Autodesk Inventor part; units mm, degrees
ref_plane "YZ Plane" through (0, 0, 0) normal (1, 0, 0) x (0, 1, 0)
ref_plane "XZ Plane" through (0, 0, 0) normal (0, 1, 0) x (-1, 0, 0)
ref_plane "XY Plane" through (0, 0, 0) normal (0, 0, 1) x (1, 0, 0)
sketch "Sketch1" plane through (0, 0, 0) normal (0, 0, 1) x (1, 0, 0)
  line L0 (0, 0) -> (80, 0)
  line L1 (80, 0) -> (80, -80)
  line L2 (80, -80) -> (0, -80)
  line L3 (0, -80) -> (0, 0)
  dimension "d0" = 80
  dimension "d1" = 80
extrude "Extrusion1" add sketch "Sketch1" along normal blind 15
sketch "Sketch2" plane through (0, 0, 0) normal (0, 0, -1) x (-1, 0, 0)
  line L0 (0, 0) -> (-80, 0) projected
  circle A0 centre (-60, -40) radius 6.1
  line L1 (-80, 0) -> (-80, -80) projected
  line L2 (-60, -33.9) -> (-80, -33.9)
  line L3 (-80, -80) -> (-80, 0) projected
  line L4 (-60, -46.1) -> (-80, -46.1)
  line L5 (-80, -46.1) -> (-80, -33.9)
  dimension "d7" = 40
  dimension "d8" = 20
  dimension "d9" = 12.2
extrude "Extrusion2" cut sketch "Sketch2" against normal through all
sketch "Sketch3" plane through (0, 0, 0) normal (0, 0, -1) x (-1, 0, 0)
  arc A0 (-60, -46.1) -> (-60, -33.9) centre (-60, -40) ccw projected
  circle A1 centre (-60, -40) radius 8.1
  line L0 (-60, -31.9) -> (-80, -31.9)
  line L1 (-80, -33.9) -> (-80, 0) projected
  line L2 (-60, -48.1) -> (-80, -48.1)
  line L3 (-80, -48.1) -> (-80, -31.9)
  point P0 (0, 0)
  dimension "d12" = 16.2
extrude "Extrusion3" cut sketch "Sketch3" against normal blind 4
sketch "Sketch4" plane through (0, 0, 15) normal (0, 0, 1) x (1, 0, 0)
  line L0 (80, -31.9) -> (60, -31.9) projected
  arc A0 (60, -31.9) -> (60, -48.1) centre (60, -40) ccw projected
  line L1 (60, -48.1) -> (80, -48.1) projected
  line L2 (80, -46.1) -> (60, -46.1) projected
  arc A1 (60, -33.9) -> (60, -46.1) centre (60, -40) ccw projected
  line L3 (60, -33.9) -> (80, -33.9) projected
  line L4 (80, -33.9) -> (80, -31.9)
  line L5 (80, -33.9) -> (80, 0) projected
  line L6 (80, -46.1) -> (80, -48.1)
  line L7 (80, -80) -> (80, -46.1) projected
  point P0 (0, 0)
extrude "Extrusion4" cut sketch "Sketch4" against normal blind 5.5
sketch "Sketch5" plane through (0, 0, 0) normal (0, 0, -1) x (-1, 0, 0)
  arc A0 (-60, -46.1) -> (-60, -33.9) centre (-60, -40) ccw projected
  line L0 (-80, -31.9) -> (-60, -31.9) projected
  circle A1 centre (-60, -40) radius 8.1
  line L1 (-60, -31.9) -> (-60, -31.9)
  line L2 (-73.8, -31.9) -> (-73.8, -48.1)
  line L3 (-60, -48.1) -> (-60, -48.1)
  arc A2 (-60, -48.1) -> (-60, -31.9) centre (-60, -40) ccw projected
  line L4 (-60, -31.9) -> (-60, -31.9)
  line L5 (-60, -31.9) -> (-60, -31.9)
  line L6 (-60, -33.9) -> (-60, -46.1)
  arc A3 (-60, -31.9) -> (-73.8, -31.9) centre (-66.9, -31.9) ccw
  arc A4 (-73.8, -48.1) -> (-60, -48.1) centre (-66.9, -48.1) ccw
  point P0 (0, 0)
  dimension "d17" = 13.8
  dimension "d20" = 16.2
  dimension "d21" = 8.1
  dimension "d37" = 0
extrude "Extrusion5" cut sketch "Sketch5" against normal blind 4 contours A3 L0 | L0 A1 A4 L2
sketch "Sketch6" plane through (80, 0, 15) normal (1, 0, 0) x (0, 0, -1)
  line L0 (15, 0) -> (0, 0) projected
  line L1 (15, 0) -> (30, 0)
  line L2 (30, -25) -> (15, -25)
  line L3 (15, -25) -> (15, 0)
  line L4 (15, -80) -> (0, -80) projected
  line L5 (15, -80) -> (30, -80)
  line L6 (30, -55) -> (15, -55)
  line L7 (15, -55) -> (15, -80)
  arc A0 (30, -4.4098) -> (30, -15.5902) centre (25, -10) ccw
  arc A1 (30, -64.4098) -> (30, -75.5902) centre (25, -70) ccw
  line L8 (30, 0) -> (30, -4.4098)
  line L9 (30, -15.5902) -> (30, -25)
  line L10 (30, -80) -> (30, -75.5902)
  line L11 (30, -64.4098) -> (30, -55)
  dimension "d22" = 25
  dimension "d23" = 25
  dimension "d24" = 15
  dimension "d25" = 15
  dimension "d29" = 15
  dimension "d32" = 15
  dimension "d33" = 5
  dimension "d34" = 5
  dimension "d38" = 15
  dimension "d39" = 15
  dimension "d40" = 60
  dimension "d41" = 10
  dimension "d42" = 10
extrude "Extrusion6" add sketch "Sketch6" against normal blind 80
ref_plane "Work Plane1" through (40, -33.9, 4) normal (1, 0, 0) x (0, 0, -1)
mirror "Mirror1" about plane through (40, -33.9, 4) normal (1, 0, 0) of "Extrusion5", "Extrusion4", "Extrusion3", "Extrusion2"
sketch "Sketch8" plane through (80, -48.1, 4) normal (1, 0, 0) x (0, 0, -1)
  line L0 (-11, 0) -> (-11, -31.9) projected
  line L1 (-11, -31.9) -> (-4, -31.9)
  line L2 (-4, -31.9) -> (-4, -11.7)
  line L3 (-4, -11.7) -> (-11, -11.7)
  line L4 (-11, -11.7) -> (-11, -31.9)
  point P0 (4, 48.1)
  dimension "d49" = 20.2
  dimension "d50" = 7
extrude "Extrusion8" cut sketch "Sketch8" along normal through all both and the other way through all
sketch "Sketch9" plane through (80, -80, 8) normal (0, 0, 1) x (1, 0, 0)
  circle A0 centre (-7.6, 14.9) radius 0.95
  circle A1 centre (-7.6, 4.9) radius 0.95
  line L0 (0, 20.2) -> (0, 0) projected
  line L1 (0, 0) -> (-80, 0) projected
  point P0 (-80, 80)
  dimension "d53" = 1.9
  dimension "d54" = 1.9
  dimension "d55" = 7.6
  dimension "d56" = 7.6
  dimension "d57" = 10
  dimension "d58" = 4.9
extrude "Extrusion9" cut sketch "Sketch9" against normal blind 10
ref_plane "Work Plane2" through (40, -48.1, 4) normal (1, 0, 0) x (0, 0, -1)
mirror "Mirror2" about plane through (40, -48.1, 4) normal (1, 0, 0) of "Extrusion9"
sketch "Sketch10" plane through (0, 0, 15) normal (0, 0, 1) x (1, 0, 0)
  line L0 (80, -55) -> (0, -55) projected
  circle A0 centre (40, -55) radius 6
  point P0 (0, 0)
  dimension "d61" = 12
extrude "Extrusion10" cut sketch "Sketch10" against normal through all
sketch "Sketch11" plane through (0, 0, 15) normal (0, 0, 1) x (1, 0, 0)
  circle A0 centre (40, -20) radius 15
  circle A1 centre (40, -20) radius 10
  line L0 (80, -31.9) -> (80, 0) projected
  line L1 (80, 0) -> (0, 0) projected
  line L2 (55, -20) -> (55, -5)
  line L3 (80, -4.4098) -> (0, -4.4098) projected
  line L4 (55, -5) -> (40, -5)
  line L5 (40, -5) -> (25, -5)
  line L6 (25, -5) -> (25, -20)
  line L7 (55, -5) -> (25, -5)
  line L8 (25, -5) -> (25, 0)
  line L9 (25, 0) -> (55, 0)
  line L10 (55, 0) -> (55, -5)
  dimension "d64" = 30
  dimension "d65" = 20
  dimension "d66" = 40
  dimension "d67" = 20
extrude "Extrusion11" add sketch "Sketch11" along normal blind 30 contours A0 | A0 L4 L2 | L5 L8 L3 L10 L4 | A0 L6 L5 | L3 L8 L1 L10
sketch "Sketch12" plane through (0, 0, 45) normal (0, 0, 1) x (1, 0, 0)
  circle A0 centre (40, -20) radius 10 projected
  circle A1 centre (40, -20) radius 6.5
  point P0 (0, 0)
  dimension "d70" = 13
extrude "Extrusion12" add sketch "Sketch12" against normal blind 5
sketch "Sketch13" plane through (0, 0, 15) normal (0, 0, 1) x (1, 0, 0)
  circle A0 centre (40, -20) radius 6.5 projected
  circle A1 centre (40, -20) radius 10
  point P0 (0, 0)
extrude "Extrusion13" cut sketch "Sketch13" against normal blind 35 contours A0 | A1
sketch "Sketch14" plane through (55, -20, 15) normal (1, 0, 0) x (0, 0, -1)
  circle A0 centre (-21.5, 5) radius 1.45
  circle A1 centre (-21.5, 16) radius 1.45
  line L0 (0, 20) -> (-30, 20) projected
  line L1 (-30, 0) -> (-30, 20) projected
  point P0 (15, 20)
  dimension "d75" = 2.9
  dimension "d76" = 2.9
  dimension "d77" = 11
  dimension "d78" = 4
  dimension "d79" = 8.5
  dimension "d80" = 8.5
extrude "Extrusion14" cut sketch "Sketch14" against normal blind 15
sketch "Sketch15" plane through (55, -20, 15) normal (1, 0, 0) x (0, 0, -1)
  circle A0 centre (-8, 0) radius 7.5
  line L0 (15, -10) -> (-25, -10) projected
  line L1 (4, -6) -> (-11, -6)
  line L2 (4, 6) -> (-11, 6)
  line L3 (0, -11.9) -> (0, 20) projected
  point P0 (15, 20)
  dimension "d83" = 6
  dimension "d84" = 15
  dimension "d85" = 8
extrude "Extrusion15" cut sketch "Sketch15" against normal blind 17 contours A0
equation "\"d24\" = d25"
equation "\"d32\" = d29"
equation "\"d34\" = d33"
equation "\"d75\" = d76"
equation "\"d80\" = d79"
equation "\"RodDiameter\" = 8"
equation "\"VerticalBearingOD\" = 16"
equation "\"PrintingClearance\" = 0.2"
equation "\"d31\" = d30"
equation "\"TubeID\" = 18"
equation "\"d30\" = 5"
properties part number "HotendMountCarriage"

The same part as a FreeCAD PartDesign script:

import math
import FreeCAD as App
import Part
import Sketcher

V = App.Vector

doc = App.newDocument("Part")
body = doc.addObject("PartDesign::Body", "Body")

# Sketch on XY plane
sketch1 = body.newObject("Sketcher::SketchObject", "Sketch")
sketch1.AttachmentSupport = (doc.getObject("XY_Plane"), [""])
sketch1.MapMode = "FlatFace"
sketch1.addGeometry([
    Part.LineSegment(V(80, 0, 0), V(0, 0, 0)),
    Part.LineSegment(V(0, 0, 0), V(0, -80, 0)),
    Part.LineSegment(V(0, -80, 0), V(80, -80, 0)),
    Part.LineSegment(V(80, -80, 0), V(80, 0, 0)),
], False)
sketch1.addConstraint([
    Sketcher.Constraint("Coincident", 0, 2, 1, 1),
    Sketcher.Constraint("Coincident", 1, 2, 2, 1),
    Sketcher.Constraint("Coincident", 2, 2, 3, 1),
    Sketcher.Constraint("Coincident", 3, 2, 0, 1),
    Sketcher.Constraint("Horizontal", 0),
    Sketcher.Constraint("Vertical", 1),
    Sketcher.Constraint("Horizontal", 2),
    Sketcher.Constraint("Vertical", 3),
    Sketcher.Constraint("Coincident", 0, 2, -1, 1),
    Sketcher.Constraint("Equal", 2, 1),
    Sketcher.Constraint("DistanceX", 0, 2, 0, 1, 80.0),
])
pad1 = body.newObject("PartDesign::Pad", "Pad")
pad1.Profile = sketch1
pad1.Length = 15

# Sketch on XY plane
sketch2 = body.newObject("Sketcher::SketchObject", "Sketch001")
sketch2.AttachmentSupport = (doc.getObject("XY_Plane"), [""])
sketch2.MapMode = "FlatFace"
sketch2.addGeometry([
    Part.ArcOfCircle(Part.Circle(V(60, -40, 0), V(0, 0, 1), 6), math.radians(90), math.radians(270)),
    Part.LineSegment(V(60, -34, 0), V(80, -34, 0)),
    Part.LineSegment(V(80, -34, 0), V(80, -46, 0)),
    Part.LineSegment(V(80, -46, 0), V(60, -46, 0)),
], False)
sketch2.addConstraint([
    Sketcher.Constraint("Tangent", 0, 1, 1, 1),
    Sketcher.Constraint("Coincident", 1, 2, 2, 1),
    Sketcher.Constraint("Coincident", 2, 2, 3, 1),
    Sketcher.Constraint("Tangent", 3, 2, 0, 2),
    Sketcher.Constraint("Horizontal", 1),
    Sketcher.Constraint("Vertical", 2),
    Sketcher.Constraint("Horizontal", 3),
    Sketcher.Constraint("Radius", 0, 6.1),
    Sketcher.Constraint("DistanceX", 1, 1, 1, 2, 20.0),
    Sketcher.Constraint("DistanceY", 0, 3, -1, 1, 40.0),
    Sketcher.Constraint("DistanceX", -1, 1, 0, 3, 60.0),
])
pocket1 = body.newObject("PartDesign::Pocket", "Pocket")
pocket1.Profile = sketch2
pocket1.Type = "ThroughAll"
pocket1.Reversed = True

# Sketch on XY plane
sketch3 = body.newObject("Sketcher::SketchObject", "Sketch002")
sketch3.AttachmentSupport = (doc.getObject("XY_Plane"), [""])
sketch3.MapMode = "FlatFace"
sketch3.addGeometry([
    Part.ArcOfCircle(Part.Circle(V(60, -40, 0), V(0, 0, 1), 8), math.radians(90), math.radians(270)),
    Part.LineSegment(V(60, -32, 0), V(80, -32, 0)),
    Part.LineSegment(V(80, -32, 0), V(80, -48, 0)),
    Part.LineSegment(V(80, -48, 0), V(60, -48, 0)),
], False)
sketch3.addConstraint([
    Sketcher.Constraint("Tangent", 0, 1, 1, 1),
    Sketcher.Constraint("Coincident", 1, 2, 2, 1),
    Sketcher.Constraint("Coincident", 2, 2, 3, 1),
    Sketcher.Constraint("Tangent", 3, 2, 0, 2),
    Sketcher.Constraint("Horizontal", 1),
    Sketcher.Constraint("Vertical", 2),
    Sketcher.Constraint("Horizontal", 3),
    Sketcher.Constraint("Radius", 0, 8.1),
    Sketcher.Constraint("DistanceX", 1, 1, 1, 2, 20.0),
    Sketcher.Constraint("DistanceX", -1, 1, 0, 3, 60.0),
    Sketcher.Constraint("DistanceY", 0, 3, -1, 1, 40.0),
])
pocket2 = body.newObject("PartDesign::Pocket", "Pocket001")
pocket2.Profile = sketch3
pocket2.Length = 4
pocket2.Reversed = True

# Sketch on XY plane
sketch4 = body.newObject("Sketcher::SketchObject", "Sketch003")
sketch4.AttachmentSupport = (doc.getObject("XY_Plane"), [""])
sketch4.MapMode = "FlatFace"
sketch4.AttachmentOffset = App.Placement(V(0, 0, 15), App.Rotation())
sketch4.addGeometry([
    Part.LineSegment(V(80, -33.9, 0), V(80, -31.9, 0)),  # 0
    Part.LineSegment(V(80, -31.9, 0), V(60, -31.9, 0)),  # 1
    Part.ArcOfCircle(Part.Circle(V(60, -40, 0), V(0, 0, 1), 8.1), math.radians(90), math.radians(270)),  # 2
    Part.LineSegment(V(60, -48.1, 0), V(80, -48.1, 0)),  # 3
    Part.LineSegment(V(80, -48.1, 0), V(80, -46.1, 0)),  # 4
    Part.LineSegment(V(80, -46.1, 0), V(60, -46.1, 0)),  # 5
    Part.ArcOfCircle(Part.Circle(V(60, -40, 0), V(0, 0, 1), 6.1), math.radians(90), math.radians(270)),  # 6
    Part.LineSegment(V(60, -33.9, 0), V(80, -33.9, 0)),  # 7
], False)
sketch4.addConstraint([
    Sketcher.Constraint("Coincident", 0, 2, 1, 1),
    Sketcher.Constraint("Tangent", 1, 2, 2, 1),
    Sketcher.Constraint("Tangent", 2, 2, 3, 1),
    Sketcher.Constraint("Coincident", 3, 2, 4, 1),
    Sketcher.Constraint("Coincident", 4, 2, 5, 1),
    Sketcher.Constraint("Tangent", 5, 2, 6, 2),
    Sketcher.Constraint("Tangent", 6, 1, 7, 1),
    Sketcher.Constraint("Coincident", 7, 2, 0, 1),
    Sketcher.Constraint("Vertical", 0),
    Sketcher.Constraint("Horizontal", 1),
    Sketcher.Constraint("Horizontal", 3),
    Sketcher.Constraint("Vertical", 4),
    Sketcher.Constraint("Horizontal", 5),
    Sketcher.Constraint("Horizontal", 7),
    Sketcher.Constraint("Coincident", 6, 3, 2, 3),
    Sketcher.Constraint("Vertical", 0, 2, 3, 2),
    Sketcher.Constraint("Radius", 2, 8.1),
    Sketcher.Constraint("Radius", 6, 6.1),
    Sketcher.Constraint("DistanceX", 1, 2, 1, 1, 20.0),
    Sketcher.Constraint("DistanceX", -1, 1, 2, 3, 60.0),
    Sketcher.Constraint("DistanceY", 2, 3, -1, 1, 40.0),
])
pocket3 = body.newObject("PartDesign::Pocket", "Pocket002")
pocket3.Profile = sketch4
pocket3.Length = 5.5

# Sketch on XY plane
sketch5 = body.newObject("Sketcher::SketchObject", "Sketch004")
sketch5.AttachmentSupport = (doc.getObject("XY_Plane"), [""])
sketch5.MapMode = "FlatFace"
sketch5.addGeometry([
    Part.ArcOfCircle(Part.Circle(V(67, -32, 0), V(0, 0, 1), 7), math.radians(0), math.radians(180)),
    Part.LineSegment(V(74, -32, 0), V(74, -48, 0)),
    Part.ArcOfCircle(Part.Circle(V(67, -48, 0), V(0, 0, 1), 7), math.radians(180), math.radians(360)),
    Part.ArcOfCircle(Part.Circle(V(60, -40, 0), V(0, 0, 1), 8), math.radians(-90), math.radians(90)),
], False)
sketch5.addConstraint([
    Sketcher.Constraint("Tangent", 0, 1, 1, 1),
    Sketcher.Constraint("Tangent", 1, 2, 2, 2),
    Sketcher.Constraint("Coincident", 2, 1, 3, 1),
    Sketcher.Constraint("Coincident", 3, 2, 0, 2),
    Sketcher.Constraint("Vertical", 1),
    Sketcher.Constraint("Equal", 0, 2),
    Sketcher.Constraint("Horizontal", 1, 2, 2, 1),
    Sketcher.Constraint("Horizontal", 0, 1, 3, 2),
    Sketcher.Constraint("Vertical", 3, 3, 2, 1),
    Sketcher.Constraint("Radius", 0, 6.9),
    Sketcher.Constraint("Radius", 3, 8.1),
    Sketcher.Constraint("DistanceX", -1, 1, 3, 3, 60.0),
    Sketcher.Constraint("DistanceY", 3, 3, -1, 1, 40.0),
])
pocket4 = body.newObject("PartDesign::Pocket", "Pocket003")
pocket4.Profile = sketch5
pocket4.Length = 4
pocket4.Reversed = True

# Sketch on YZ plane
sketch6 = body.newObject("Sketcher::SketchObject", "Sketch005")
sketch6.AttachmentSupport = (doc.getObject("YZ_Plane"), [""])
sketch6.MapMode = "FlatFace"
sketch6.AttachmentOffset = App.Placement(V(0, 0, 80), App.Rotation())
sketch6.addGeometry([
    Part.LineSegment(V(0, -15, 0), V(0, 0, 0)),  # 0
    Part.LineSegment(V(0, 0, 0), V(-25, 0, 0)),  # 1
    Part.LineSegment(V(-25, 0, 0), V(-25, -15, 0)),  # 2
    Part.LineSegment(V(-25, -15, 0), V(-15.6, -15, 0)),  # 3
    Part.ArcOfCircle(Part.Circle(V(-10, -10, 0), V(0, 0, 1), 7.5), math.radians(-42), math.radians(222)),  # 4
    Part.LineSegment(V(-4.4, -15, 0), V(0, -15, 0)),  # 5
    Part.LineSegment(V(-55, 0, 0), V(-80, 0, 0)),  # 6
    Part.LineSegment(V(-80, 0, 0), V(-80, -15, 0)),  # 7
    Part.LineSegment(V(-80, -15, 0), V(-75.6, -15, 0)),  # 8
    Part.ArcOfCircle(Part.Circle(V(-70, -10, 0), V(0, 0, 1), 7.5), math.radians(-42), math.radians(222)),  # 9
    Part.LineSegment(V(-64.4, -15, 0), V(-55, -15, 0)),  # 10
    Part.LineSegment(V(-55, -15, 0), V(-55, 0, 0)),  # 11
], False)
sketch6.addConstraint([
    Sketcher.Constraint("Coincident", 0, 2, 1, 1),
    Sketcher.Constraint("Coincident", 1, 2, 2, 1),
    Sketcher.Constraint("Coincident", 2, 2, 3, 1),
    Sketcher.Constraint("Coincident", 3, 2, 4, 2),
    Sketcher.Constraint("Coincident", 4, 1, 5, 1),
    Sketcher.Constraint("Coincident", 5, 2, 0, 1),
    Sketcher.Constraint("Coincident", 6, 2, 7, 1),
    Sketcher.Constraint("Coincident", 7, 2, 8, 1),
    Sketcher.Constraint("Coincident", 8, 2, 9, 2),
    Sketcher.Constraint("Coincident", 9, 1, 10, 1),
    Sketcher.Constraint("Coincident", 10, 2, 11, 1),
    Sketcher.Constraint("Coincident", 11, 2, 6, 1),
    Sketcher.Constraint("Vertical", 0),
    Sketcher.Constraint("Horizontal", 1),
    Sketcher.Constraint("Vertical", 2),
    Sketcher.Constraint("Horizontal", 3),
    Sketcher.Constraint("Horizontal", 5),
    Sketcher.Constraint("Horizontal", 6),
    Sketcher.Constraint("Vertical", 7),
    Sketcher.Constraint("Horizontal", 8),
    Sketcher.Constraint("Horizontal", 10),
    Sketcher.Constraint("Vertical", 11),
    Sketcher.Constraint("Coincident", 0, 2, -1, 1),
    Sketcher.Constraint("Equal", 4, 9),
    Sketcher.Constraint("PointOnObject", 6, 2, -1),
    Sketcher.Constraint("Horizontal", 4, 3, 9, 3),
    Sketcher.Constraint("Horizontal", 3, 2, 4, 1),
    Sketcher.Constraint("Horizontal", 5, 2, 7, 2),
    Sketcher.Constraint("Horizontal", 8, 2, 9, 1),
    Sketcher.Constraint("Equal", 1, 6),
    Sketcher.Constraint("Equal", 5, 8),
    Sketcher.Constraint("Radius", 4, 7.5),
    Sketcher.Constraint("DistanceX", 1, 2, 1, 1, 25.0),
    Sketcher.Constraint("DistanceY", 0, 1, 0, 2, 15.0),
    Sketcher.Constraint("DistanceX", 4, 3, -1, 1, 10.0),
    Sketcher.Constraint("DistanceY", 4, 3, -1, 1, 10.0),
    Sketcher.Constraint("DistanceX", 9, 3, 4, 3, 60.0),
])
pad2 = body.newObject("PartDesign::Pad", "Pad001")
pad2.Profile = sketch6
pad2.Length = 80
pad2.Reversed = True
doc.recompute()

datumplane = body.newObject("PartDesign::Plane", "DatumPlane")
datumplane.AttachmentSupport = (doc.getObject("YZ_Plane"), [""])
datumplane.MapMode = "FlatFace"
datumplane.AttachmentOffset = App.Placement(V(0, 0, 40), App.Rotation())
mirrored = body.newObject("PartDesign::Mirrored", "Mirrored")
mirrored.Originals = [pocket4, pocket3, pocket2, pocket1]
mirrored.MirrorPlane = (datumplane, [""])
body.Tip = mirrored

# Sketch on YZ plane
sketch7 = body.newObject("Sketcher::SketchObject", "Sketch006")
sketch7.AttachmentSupport = (doc.getObject("YZ_Plane"), [""])
sketch7.MapMode = "FlatFace"
sketch7.AttachmentOffset = App.Placement(V(0, 0, 80), App.Rotation())
sketch7.addGeometry([
    Part.LineSegment(V(-60, 8, 0), V(-60, 15, 0)),
    Part.LineSegment(V(-60, 15, 0), V(-80, 15, 0)),
    Part.LineSegment(V(-80, 15, 0), V(-80, 8, 0)),
    Part.LineSegment(V(-80, 8, 0), V(-60, 8, 0)),
], False)
sketch7.addConstraint([
    Sketcher.Constraint("Coincident", 0, 2, 1, 1),
    Sketcher.Constraint("Coincident", 1, 2, 2, 1),
    Sketcher.Constraint("Coincident", 2, 2, 3, 1),
    Sketcher.Constraint("Coincident", 3, 2, 0, 1),
    Sketcher.Constraint("Vertical", 0),
    Sketcher.Constraint("Horizontal", 1),
    Sketcher.Constraint("Vertical", 2),
    Sketcher.Constraint("Horizontal", 3),
    Sketcher.Constraint("DistanceY", 0, 1, 0, 2, 7.0),
    Sketcher.Constraint("DistanceX", 1, 2, 1, 1, 20.2),
    Sketcher.Constraint("DistanceY", -1, 1, 0, 2, 15.0),
    Sketcher.Constraint("DistanceX", 1, 2, -1, 1, 80.0),
])
pocket5 = body.newObject("PartDesign::Pocket", "Pocket004")
pocket5.Profile = sketch7
pocket5.Type = "ThroughAll"
pocket5.Midplane = True

# Sketch on XY plane
sketch8 = body.newObject("Sketcher::SketchObject", "Sketch007")
sketch8.AttachmentSupport = (doc.getObject("XY_Plane"), [""])
sketch8.MapMode = "FlatFace"
sketch8.AttachmentOffset = App.Placement(V(0, 0, 8), App.Rotation())
sketch8.addGeometry([
    Part.Circle(V(72.4, -65.1, 0), V(0, 0, 1), 0.9),
    Part.Circle(V(72.4, -75.1, 0), V(0, 0, 1), 0.9),
], False)
sketch8.addConstraint([
    Sketcher.Constraint("Equal", 0, 1),
    Sketcher.Constraint("Vertical", 0, 3, 1, 3),
    Sketcher.Constraint("Diameter", 0, 1.9),
    Sketcher.Constraint("DistanceY", 1, 3, 0, 3, 10.0),
    Sketcher.Constraint("DistanceX", -1, 1, 0, 3, 72.4),
    Sketcher.Constraint("DistanceY", 0, 3, -1, 1, 65.1),
])
pocket6 = body.newObject("PartDesign::Pocket", "Pocket005")
pocket6.Profile = sketch8
pocket6.Length = 10
doc.recompute()

datumplane2 = body.newObject("PartDesign::Plane", "DatumPlane001")
datumplane2.AttachmentSupport = (doc.getObject("YZ_Plane"), [""])
datumplane2.MapMode = "FlatFace"
datumplane2.AttachmentOffset = App.Placement(V(0, 0, 40), App.Rotation())
mirrored2 = body.newObject("PartDesign::Mirrored", "Mirrored001")
mirrored2.Originals = [pocket6]
mirrored2.MirrorPlane = (datumplane2, [""])
body.Tip = mirrored2

# Sketch on XY plane
sketch9 = body.newObject("Sketcher::SketchObject", "Sketch008")
sketch9.AttachmentSupport = (doc.getObject("XY_Plane"), [""])
sketch9.MapMode = "FlatFace"
sketch9.AttachmentOffset = App.Placement(V(0, 0, 15), App.Rotation())
sketch9.addGeometry(Part.Circle(V(40, -55, 0), V(0, 0, 1), 6), False)
sketch9.addConstraint([
    Sketcher.Constraint("Diameter", 0, 12.0),
    Sketcher.Constraint("DistanceX", -1, 1, 0, 3, 40.0),
    Sketcher.Constraint("DistanceY", 0, 3, -1, 1, 55.0),
])
pocket7 = body.newObject("PartDesign::Pocket", "Pocket006")
pocket7.Profile = sketch9
pocket7.Type = "ThroughAll"

# Sketch on XY plane
sketch10 = body.newObject("Sketcher::SketchObject", "Sketch009")
sketch10.AttachmentSupport = (doc.getObject("XY_Plane"), [""])
sketch10.MapMode = "FlatFace"
sketch10.AttachmentOffset = App.Placement(V(0, 0, 15), App.Rotation())
sketch10.addGeometry([
    Part.ArcOfCircle(Part.Circle(V(40, -20, 0), V(0, 0, 1), 15), math.radians(180), math.radians(360)),  # 0
    Part.LineSegment(V(55, -20, 0), V(55, 0, 0)),  # 1
    Part.LineSegment(V(55, 0, 0), V(25, 0, 0)),  # 2
    Part.LineSegment(V(25, 0, 0), V(25, -20, 0)),  # 3
    Part.Circle(V(40, -20, 0), V(0, 0, 1), 10),  # 4
], False)
sketch10.addConstraint([
    Sketcher.Constraint("Tangent", 0, 2, 1, 1),
    Sketcher.Constraint("Coincident", 1, 2, 2, 1),
    Sketcher.Constraint("Coincident", 2, 2, 3, 1),
    Sketcher.Constraint("Tangent", 3, 2, 0, 1),
    Sketcher.Constraint("Vertical", 1),
    Sketcher.Constraint("Horizontal", 2),
    Sketcher.Constraint("Vertical", 3),
    Sketcher.Constraint("Coincident", 4, 3, 0, 3),
    Sketcher.Constraint("PointOnObject", 1, 2, -1),
    Sketcher.Constraint("Diameter", 4, 20.0),
    Sketcher.Constraint("Radius", 0, 15.0),
    Sketcher.Constraint("DistanceY", 1, 1, 1, 2, 20.0),
    Sketcher.Constraint("DistanceX", -1, 1, 0, 3, 40.0),
])
pad3 = body.newObject("PartDesign::Pad", "Pad002")
pad3.Profile = sketch10
pad3.Length = 30

# Sketch on XY plane
sketch11 = body.newObject("Sketcher::SketchObject", "Sketch010")
sketch11.AttachmentSupport = (doc.getObject("XY_Plane"), [""])
sketch11.MapMode = "FlatFace"
sketch11.AttachmentOffset = App.Placement(V(0, 0, 45), App.Rotation())
sketch11.addGeometry([
    Part.Circle(V(40, -20, 0), V(0, 0, 1), 10),
    Part.Circle(V(40, -20, 0), V(0, 0, 1), 6),
], False)
sketch11.addConstraint([
    Sketcher.Constraint("Coincident", 1, 3, 0, 3),
    Sketcher.Constraint("Diameter", 1, 13.0),
    Sketcher.Constraint("Diameter", 0, 20.0),
    Sketcher.Constraint("DistanceX", -1, 1, 0, 3, 40.0),
    Sketcher.Constraint("DistanceY", 0, 3, -1, 1, 20.0),
])
pad4 = body.newObject("PartDesign::Pad", "Pad003")
pad4.Profile = sketch11
pad4.Length = 5
pad4.Reversed = True

# Sketch on XY plane
sketch12 = body.newObject("Sketcher::SketchObject", "Sketch011")
sketch12.AttachmentSupport = (doc.getObject("XY_Plane"), [""])
sketch12.MapMode = "FlatFace"
sketch12.AttachmentOffset = App.Placement(V(0, 0, 15), App.Rotation())
sketch12.addGeometry(Part.Circle(V(40, -20, 0), V(0, 0, 1), 10), False)
sketch12.addConstraint([
    Sketcher.Constraint("Diameter", 0, 20.0),
    Sketcher.Constraint("DistanceX", -1, 1, 0, 3, 40.0),
    Sketcher.Constraint("DistanceY", 0, 3, -1, 1, 20.0),
])
pocket8 = body.newObject("PartDesign::Pocket", "Pocket007")
pocket8.Profile = sketch12
pocket8.Length = 35

# Sketch on YZ plane
sketch13 = body.newObject("Sketcher::SketchObject", "Sketch012")
sketch13.AttachmentSupport = (doc.getObject("YZ_Plane"), [""])
sketch13.MapMode = "FlatFace"
sketch13.AttachmentOffset = App.Placement(V(0, 0, 55), App.Rotation())
sketch13.addGeometry([
    Part.Circle(V(-15, 36.5, 0), V(0, 0, 1), 1.4),
    Part.Circle(V(-4, 36.5, 0), V(0, 0, 1), 1.4),
], False)
sketch13.addConstraint([
    Sketcher.Constraint("Equal", 0, 1),
    Sketcher.Constraint("Horizontal", 0, 3, 1, 3),
    Sketcher.Constraint("Diameter", 0, 2.9),
    Sketcher.Constraint("DistanceX", 1, 3, -1, 1, 4.0),
    Sketcher.Constraint("DistanceX", 0, 3, 1, 3, 11.0),
    Sketcher.Constraint("DistanceY", -1, 1, 0, 3, 36.5),
])
pocket9 = body.newObject("PartDesign::Pocket", "Pocket008")
pocket9.Profile = sketch13
pocket9.Length = 15

# Sketch on YZ plane
sketch14 = body.newObject("Sketcher::SketchObject", "Sketch013")
sketch14.AttachmentSupport = (doc.getObject("YZ_Plane"), [""])
sketch14.MapMode = "FlatFace"
sketch14.AttachmentOffset = App.Placement(V(0, 0, 55), App.Rotation())
sketch14.addGeometry(Part.Circle(V(-20, 23, 0), V(0, 0, 1), 8), False)
sketch14.addConstraint([
    Sketcher.Constraint("Diameter", 0, 15.0),
    Sketcher.Constraint("DistanceX", 0, 3, -1, 1, 20.0),
    Sketcher.Constraint("DistanceY", -1, 1, 0, 3, 23.0),
])
pocket10 = body.newObject("PartDesign::Pocket", "Pocket009")
pocket10.Profile = sketch14
pocket10.Length = 17

doc.recompute()
